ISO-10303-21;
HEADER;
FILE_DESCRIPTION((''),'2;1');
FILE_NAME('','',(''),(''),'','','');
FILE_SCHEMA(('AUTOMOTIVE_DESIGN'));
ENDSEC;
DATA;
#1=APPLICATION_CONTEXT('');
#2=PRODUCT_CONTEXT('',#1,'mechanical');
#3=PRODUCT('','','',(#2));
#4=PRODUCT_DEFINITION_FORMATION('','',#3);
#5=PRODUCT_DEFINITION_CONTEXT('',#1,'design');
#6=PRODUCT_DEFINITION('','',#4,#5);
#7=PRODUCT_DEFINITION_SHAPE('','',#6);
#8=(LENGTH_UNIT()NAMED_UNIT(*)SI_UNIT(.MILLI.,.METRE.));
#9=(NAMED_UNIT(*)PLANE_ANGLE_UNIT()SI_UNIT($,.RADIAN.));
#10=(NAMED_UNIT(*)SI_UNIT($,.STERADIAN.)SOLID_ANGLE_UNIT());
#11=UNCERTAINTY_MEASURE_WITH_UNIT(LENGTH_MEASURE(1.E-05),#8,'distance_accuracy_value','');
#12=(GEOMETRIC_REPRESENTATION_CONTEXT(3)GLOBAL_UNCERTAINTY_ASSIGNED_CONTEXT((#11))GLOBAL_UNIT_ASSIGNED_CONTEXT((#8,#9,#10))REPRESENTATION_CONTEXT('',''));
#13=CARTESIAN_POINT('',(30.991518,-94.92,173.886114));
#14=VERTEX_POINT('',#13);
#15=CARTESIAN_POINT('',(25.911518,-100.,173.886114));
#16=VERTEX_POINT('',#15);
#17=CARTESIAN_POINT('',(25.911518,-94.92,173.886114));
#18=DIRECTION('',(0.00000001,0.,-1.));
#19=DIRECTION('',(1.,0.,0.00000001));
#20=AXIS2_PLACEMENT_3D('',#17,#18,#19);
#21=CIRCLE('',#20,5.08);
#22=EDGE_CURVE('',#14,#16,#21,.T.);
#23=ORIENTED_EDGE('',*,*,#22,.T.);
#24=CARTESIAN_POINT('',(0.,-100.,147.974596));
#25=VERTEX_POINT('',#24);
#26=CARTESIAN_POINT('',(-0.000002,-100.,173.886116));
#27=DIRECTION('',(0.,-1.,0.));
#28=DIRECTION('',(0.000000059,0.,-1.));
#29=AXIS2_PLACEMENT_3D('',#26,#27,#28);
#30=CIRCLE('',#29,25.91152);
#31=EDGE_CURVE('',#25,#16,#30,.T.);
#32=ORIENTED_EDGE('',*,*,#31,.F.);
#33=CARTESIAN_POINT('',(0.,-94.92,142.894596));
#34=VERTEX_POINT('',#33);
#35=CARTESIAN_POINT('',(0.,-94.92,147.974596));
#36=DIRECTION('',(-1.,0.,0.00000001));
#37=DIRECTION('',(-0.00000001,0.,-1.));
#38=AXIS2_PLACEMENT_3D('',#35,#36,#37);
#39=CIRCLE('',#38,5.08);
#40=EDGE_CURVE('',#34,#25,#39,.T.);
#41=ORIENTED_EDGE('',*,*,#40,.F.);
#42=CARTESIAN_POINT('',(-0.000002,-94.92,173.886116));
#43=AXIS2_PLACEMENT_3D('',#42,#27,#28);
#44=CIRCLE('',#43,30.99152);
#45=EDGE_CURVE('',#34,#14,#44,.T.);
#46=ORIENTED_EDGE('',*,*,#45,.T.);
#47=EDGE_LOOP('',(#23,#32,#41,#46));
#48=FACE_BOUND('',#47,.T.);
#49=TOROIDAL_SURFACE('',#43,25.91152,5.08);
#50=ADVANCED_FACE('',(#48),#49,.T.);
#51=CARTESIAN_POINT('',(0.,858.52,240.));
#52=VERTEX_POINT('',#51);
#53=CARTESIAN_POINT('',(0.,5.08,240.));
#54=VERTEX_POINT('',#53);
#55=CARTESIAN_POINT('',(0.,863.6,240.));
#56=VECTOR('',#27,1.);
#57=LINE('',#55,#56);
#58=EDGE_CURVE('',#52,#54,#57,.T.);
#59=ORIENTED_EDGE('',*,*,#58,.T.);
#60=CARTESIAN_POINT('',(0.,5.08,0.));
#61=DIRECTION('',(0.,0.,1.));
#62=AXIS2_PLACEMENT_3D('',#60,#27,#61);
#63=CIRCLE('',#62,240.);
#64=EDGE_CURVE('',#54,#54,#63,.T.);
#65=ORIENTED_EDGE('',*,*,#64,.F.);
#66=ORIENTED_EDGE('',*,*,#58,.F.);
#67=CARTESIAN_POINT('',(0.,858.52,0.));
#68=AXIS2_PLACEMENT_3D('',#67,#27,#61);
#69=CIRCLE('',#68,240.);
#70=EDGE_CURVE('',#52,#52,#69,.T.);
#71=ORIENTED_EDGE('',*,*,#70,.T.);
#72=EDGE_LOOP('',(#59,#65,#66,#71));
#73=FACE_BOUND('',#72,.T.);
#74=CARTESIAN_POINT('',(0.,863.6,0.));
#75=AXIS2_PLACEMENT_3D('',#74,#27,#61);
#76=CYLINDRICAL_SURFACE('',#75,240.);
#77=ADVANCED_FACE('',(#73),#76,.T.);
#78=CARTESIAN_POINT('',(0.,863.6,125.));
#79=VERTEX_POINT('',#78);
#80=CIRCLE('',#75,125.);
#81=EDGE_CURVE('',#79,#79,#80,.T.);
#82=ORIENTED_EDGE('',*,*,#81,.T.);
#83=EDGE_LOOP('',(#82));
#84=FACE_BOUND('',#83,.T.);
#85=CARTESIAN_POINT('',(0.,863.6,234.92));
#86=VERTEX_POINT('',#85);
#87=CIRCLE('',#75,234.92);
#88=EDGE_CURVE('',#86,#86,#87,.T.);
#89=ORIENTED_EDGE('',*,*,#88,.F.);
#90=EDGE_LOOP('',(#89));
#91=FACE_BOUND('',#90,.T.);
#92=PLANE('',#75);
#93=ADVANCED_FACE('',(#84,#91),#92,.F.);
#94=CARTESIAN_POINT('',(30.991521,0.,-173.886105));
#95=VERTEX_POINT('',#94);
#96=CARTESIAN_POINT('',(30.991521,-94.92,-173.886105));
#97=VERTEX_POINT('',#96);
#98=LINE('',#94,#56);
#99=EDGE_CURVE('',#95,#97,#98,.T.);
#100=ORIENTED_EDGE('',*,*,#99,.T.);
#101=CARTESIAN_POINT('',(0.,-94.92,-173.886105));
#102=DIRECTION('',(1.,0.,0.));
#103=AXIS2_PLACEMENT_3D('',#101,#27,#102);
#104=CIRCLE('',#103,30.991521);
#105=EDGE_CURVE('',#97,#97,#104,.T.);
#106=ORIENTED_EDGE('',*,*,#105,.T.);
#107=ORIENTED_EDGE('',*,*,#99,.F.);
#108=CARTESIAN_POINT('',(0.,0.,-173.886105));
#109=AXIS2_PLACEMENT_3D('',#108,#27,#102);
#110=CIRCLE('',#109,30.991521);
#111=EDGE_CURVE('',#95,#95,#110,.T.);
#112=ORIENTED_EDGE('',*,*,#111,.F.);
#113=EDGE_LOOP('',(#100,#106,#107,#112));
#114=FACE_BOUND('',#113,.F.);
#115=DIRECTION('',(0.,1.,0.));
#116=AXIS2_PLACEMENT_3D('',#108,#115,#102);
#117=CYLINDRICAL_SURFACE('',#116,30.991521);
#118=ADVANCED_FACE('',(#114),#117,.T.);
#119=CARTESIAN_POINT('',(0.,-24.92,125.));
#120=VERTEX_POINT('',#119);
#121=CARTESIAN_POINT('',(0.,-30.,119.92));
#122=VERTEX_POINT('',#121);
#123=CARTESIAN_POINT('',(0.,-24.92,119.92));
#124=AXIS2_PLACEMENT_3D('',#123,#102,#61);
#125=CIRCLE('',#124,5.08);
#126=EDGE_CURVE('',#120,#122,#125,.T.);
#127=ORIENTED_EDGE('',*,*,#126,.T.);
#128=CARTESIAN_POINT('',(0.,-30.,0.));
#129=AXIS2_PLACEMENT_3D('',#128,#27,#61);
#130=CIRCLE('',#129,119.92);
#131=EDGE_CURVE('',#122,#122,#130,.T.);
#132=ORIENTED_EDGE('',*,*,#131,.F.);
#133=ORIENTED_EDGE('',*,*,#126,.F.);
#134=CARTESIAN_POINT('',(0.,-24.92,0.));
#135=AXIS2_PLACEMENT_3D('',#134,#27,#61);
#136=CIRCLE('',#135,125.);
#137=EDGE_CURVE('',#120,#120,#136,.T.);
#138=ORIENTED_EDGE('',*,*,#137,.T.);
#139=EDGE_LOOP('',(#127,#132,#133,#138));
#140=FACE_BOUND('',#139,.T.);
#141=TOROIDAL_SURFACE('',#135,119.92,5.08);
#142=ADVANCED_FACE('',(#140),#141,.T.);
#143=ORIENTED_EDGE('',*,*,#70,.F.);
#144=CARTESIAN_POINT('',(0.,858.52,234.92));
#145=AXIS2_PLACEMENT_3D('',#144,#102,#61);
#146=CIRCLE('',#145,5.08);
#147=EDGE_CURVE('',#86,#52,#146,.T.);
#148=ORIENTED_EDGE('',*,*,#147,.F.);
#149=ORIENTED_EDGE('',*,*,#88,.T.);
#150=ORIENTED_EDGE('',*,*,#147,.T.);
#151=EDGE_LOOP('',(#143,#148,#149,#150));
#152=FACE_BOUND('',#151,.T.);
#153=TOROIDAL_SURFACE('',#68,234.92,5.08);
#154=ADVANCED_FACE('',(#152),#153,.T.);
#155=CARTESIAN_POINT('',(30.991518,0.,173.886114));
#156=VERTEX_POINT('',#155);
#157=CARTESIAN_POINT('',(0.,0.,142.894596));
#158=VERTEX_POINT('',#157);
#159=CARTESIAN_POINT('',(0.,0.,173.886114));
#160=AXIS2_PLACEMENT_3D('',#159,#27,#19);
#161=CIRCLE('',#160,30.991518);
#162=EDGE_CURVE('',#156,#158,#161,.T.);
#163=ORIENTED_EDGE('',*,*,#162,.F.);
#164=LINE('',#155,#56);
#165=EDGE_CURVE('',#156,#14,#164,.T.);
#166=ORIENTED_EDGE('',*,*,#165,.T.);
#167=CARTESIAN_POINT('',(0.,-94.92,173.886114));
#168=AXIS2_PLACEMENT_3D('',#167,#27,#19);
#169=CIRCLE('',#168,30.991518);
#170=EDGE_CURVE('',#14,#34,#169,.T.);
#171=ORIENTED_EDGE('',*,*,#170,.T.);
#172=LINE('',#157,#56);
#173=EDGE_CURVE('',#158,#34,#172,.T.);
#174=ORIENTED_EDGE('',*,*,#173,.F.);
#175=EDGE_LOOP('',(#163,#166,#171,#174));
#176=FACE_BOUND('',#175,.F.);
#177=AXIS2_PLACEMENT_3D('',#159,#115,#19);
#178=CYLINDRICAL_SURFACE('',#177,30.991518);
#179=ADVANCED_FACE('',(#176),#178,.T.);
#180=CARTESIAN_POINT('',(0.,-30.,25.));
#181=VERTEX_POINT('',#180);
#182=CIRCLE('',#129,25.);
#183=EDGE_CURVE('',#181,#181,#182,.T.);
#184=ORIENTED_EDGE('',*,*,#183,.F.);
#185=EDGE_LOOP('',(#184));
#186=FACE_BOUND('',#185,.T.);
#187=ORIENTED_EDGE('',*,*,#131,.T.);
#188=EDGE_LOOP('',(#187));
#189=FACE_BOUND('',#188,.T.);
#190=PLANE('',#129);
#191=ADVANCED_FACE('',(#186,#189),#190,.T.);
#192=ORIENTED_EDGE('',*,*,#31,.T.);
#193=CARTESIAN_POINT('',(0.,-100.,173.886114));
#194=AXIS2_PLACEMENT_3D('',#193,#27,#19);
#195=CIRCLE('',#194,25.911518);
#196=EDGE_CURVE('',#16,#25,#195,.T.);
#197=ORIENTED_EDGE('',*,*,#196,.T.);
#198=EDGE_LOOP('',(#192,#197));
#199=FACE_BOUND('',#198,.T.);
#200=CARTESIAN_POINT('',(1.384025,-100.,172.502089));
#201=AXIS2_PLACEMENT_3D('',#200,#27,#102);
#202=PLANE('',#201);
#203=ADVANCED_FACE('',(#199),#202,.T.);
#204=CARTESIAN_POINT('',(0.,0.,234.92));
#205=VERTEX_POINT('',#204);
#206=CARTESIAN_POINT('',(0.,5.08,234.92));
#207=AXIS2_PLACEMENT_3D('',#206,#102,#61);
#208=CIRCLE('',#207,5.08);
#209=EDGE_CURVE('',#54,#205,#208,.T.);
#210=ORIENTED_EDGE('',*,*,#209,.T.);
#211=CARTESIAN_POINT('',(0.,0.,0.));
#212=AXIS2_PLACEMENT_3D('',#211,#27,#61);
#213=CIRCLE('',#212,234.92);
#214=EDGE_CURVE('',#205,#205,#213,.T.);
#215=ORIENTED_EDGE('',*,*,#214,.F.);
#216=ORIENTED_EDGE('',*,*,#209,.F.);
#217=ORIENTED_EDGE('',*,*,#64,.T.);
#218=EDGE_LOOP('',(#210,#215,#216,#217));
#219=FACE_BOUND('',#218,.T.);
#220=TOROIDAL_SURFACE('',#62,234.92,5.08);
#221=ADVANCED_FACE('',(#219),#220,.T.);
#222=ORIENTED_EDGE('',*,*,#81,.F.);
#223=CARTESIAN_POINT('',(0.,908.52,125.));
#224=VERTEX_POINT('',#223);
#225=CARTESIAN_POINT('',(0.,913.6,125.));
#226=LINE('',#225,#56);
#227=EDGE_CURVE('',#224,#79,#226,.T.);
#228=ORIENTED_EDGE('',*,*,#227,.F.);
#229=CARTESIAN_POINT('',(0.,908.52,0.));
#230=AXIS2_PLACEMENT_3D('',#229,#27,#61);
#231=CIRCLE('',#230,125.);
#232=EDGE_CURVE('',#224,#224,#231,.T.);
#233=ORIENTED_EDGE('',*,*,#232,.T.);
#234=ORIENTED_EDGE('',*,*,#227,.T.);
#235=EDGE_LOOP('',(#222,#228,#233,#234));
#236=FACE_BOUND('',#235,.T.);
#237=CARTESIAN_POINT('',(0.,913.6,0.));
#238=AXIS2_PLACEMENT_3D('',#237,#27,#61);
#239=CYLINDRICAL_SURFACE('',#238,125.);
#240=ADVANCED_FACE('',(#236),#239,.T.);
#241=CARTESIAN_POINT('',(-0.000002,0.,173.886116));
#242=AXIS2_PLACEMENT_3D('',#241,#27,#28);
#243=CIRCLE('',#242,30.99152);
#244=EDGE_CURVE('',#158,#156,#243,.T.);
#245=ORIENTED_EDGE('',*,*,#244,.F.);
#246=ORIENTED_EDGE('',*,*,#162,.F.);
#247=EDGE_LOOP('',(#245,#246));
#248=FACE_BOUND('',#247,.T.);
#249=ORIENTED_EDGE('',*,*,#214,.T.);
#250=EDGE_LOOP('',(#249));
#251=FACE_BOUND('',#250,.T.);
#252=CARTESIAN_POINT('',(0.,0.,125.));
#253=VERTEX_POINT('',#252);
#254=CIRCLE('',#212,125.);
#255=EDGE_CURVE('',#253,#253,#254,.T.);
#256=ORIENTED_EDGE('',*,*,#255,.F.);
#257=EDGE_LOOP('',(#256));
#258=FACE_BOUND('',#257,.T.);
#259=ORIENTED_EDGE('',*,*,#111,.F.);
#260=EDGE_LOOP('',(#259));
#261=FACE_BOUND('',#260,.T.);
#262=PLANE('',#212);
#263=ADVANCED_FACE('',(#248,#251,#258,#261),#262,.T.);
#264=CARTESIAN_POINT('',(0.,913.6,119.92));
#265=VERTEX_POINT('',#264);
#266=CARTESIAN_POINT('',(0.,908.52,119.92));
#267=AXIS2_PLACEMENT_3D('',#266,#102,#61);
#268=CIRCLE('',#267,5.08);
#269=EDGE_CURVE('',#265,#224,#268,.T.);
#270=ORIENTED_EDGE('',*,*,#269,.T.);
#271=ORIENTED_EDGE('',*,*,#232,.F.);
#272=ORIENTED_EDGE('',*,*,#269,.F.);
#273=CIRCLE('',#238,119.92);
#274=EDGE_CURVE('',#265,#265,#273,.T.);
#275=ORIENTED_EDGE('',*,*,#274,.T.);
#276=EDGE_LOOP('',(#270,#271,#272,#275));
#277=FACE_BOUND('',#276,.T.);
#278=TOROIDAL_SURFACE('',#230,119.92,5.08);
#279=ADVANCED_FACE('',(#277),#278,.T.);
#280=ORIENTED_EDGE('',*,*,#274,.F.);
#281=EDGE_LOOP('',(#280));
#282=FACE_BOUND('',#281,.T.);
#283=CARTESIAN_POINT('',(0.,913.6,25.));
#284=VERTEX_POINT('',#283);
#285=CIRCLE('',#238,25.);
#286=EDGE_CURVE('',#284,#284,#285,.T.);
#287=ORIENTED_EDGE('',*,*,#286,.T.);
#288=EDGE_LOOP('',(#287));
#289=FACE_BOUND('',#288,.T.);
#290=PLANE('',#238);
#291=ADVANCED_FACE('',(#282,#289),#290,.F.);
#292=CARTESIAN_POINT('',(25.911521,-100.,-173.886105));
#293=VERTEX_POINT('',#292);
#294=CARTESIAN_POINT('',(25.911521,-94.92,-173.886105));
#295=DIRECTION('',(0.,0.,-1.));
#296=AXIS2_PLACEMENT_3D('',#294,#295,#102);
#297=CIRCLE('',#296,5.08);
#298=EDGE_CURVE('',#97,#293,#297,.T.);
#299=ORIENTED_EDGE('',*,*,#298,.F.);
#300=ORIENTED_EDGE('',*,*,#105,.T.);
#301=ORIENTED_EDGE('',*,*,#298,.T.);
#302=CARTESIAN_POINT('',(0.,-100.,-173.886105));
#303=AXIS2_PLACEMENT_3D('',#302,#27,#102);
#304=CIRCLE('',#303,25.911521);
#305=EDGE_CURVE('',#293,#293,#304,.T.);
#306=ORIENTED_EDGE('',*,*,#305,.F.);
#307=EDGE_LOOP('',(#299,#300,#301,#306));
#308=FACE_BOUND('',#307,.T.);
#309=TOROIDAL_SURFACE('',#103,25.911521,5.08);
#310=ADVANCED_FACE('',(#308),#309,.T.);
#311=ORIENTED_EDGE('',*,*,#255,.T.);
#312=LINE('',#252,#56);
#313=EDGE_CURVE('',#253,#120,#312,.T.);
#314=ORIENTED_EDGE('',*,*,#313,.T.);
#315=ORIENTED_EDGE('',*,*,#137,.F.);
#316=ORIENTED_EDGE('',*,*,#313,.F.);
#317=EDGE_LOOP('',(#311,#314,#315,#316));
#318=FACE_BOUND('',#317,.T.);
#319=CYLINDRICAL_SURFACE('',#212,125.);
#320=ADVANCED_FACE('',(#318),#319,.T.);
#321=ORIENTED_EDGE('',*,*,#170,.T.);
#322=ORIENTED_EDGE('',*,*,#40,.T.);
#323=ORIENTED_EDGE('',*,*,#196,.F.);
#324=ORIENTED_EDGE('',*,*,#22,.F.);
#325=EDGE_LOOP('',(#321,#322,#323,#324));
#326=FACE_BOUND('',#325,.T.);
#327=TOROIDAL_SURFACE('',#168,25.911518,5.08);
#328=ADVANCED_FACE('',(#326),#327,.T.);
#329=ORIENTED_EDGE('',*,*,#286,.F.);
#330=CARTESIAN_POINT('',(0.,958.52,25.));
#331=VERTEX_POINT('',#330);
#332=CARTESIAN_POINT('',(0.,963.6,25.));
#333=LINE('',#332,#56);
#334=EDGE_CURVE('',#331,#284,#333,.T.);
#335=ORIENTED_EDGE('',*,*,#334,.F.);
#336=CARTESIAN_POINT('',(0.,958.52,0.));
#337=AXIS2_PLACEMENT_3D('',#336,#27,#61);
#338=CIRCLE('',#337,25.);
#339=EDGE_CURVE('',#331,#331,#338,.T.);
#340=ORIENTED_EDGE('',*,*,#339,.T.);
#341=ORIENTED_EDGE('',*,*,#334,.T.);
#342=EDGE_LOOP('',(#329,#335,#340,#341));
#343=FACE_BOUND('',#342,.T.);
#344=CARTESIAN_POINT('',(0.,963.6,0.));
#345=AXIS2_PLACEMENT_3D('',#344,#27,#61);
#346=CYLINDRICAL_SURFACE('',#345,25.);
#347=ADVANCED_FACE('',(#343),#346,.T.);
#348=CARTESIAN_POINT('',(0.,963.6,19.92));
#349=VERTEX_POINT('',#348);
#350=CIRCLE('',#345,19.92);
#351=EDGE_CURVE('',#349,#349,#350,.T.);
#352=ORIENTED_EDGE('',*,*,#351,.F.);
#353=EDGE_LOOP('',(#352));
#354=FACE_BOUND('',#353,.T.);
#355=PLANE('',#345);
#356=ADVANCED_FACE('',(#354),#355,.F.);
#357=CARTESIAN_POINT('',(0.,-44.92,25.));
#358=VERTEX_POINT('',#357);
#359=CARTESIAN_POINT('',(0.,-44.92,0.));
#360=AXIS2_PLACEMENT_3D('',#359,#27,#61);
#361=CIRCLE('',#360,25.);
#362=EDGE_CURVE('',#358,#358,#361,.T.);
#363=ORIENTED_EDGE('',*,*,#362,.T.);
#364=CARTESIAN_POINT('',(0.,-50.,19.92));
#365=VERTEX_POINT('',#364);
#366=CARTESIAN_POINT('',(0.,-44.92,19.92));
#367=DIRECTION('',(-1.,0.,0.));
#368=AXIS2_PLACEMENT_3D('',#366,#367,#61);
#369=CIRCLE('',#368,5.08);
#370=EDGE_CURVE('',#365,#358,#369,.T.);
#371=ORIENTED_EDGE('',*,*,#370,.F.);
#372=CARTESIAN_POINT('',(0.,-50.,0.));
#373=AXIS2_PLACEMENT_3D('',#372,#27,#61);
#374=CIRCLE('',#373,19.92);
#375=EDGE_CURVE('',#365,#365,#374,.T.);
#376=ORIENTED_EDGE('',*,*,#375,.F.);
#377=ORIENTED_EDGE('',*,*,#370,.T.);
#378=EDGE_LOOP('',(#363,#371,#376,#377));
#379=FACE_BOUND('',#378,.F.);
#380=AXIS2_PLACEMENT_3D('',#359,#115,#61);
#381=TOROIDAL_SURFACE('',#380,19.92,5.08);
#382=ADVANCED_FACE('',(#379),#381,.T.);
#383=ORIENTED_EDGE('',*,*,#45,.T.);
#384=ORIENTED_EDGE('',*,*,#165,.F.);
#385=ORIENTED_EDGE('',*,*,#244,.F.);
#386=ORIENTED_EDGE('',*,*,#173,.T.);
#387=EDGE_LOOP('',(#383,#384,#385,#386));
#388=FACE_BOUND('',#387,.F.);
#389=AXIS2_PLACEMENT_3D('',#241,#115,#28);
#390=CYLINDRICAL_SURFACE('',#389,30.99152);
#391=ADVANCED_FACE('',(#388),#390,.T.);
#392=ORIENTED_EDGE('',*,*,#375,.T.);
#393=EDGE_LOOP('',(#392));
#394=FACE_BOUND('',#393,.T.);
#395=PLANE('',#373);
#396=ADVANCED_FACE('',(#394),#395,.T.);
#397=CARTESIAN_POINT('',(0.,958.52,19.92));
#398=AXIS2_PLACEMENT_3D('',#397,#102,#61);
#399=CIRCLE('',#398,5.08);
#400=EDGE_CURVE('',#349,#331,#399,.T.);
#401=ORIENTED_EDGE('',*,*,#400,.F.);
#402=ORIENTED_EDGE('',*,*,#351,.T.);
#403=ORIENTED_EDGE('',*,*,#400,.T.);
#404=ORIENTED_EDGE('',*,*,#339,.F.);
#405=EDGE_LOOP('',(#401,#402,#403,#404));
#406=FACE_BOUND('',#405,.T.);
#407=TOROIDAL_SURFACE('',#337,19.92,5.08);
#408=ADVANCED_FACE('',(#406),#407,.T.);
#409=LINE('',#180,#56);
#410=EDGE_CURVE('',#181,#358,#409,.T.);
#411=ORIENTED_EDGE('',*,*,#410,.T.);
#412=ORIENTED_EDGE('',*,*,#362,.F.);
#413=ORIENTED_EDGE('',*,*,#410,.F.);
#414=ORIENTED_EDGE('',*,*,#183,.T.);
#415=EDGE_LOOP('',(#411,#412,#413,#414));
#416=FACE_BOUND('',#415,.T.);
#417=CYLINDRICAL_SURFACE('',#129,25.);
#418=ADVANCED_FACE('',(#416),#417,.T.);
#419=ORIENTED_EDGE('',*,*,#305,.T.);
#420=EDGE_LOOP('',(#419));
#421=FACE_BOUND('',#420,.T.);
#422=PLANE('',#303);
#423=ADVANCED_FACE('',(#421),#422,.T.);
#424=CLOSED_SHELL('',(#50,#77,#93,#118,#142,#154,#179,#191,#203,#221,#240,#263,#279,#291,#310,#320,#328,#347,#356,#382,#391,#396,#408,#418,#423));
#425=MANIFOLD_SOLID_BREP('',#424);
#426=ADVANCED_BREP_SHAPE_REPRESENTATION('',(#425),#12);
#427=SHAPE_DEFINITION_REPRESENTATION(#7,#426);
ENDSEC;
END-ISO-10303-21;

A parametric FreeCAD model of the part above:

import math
import FreeCAD as App
import Part
import Sketcher

V = App.Vector


def edges_at(feature, points):
    """Names of the edges that pass closest to the given points."""
    edges = feature.Shape.Edges
    near = lambda p: min(range(len(edges)), key=lambda i: edges[i].distToShape(Part.Vertex(*p))[0])
    return sorted({f"Edge{near(p) + 1}" for p in points})


def add_polygon(sketch, points):
    """Adds a closed chain of lines whose ends are joined by coincident constraints."""
    first, n = sketch.GeometryCount, len(points)
    for a, b in zip(points, points[1:] + points[:1]):
        sketch.addGeometry(Part.LineSegment(App.Vector(*a, 0), App.Vector(*b, 0)), False)
    for i in range(n):
        sketch.addConstraint(Sketcher.Constraint("Coincident", first + i, 2, first + (i + 1) % n, 1))

doc = App.newDocument("Part")
params = doc.addObject("Spreadsheet::Sheet", "Params")
for row, (alias, value) in enumerate([
    ("sketch1_width", "50 mm"),
    ("sketch1_width2", "30 mm"),
    ("sketch1_width3", "20 mm"),
    ("sketch1_height", "25 mm"),
    ("sketch1_height2", "100 mm"),
    ("revolution_angle", "360 deg"),
    ("fillet_radius", "5.08 mm"),
    ("pad1_length", "100 mm"),
    ("fillet2_radius", "5.08 mm"),
], start=1):
    params.set(f"A{row}", alias)
    params.set(f"B{row}", "=" + value)
    params.setAlias(f"B{row}", alias)

body = doc.addObject("PartDesign::Body", "Body")

# Sketch on YZ plane
sketch1 = body.newObject("Sketcher::SketchObject", "Sketch")
sketch1.AttachmentSupport = (doc.getObject("YZ_Plane"), [""])
sketch1.MapMode = "FlatFace"
add_polygon(sketch1, [(-50, 25), (-50, 0), (964, 0), (964, 25), (914, 25), (914, 125), (864, 125), (864, 240), (0, 240), (0, 125), (-30, 125), (-30, 25)])  # lines 0-11
sketch1.addConstraint([
    Sketcher.Constraint("Vertical", 0),
    Sketcher.Constraint("Horizontal", 1),
    Sketcher.Constraint("Vertical", 2),
    Sketcher.Constraint("Horizontal", 3),
    Sketcher.Constraint("Vertical", 4),
    Sketcher.Constraint("Horizontal", 5),
    Sketcher.Constraint("Vertical", 6),
    Sketcher.Constraint("Horizontal", 7),
    Sketcher.Constraint("Vertical", 8),
    Sketcher.Constraint("Horizontal", 9),
    Sketcher.Constraint("Vertical", 10),
    Sketcher.Constraint("Horizontal", 11),
    Sketcher.Constraint("PointOnObject", 0, 2, -1),
    Sketcher.Constraint("PointOnObject", 7, 2, -2),
    Sketcher.Constraint("Horizontal", 5, 2, 8, 2),
    Sketcher.Constraint("Horizontal", 3, 2, 10, 2),
    Sketcher.Constraint("Equal", 3, 5),
    Sketcher.Constraint("DistanceX", 3, 2, 3, 1, 50.0),
    Sketcher.Constraint("DistanceX", 9, 2, 9, 1, 30.0),
    Sketcher.Constraint("DistanceX", 11, 2, 11, 1, 20.0),
    Sketcher.Constraint("DistanceY", 0, 2, 0, 1, 25.0),
    Sketcher.Constraint("DistanceY", 4, 1, 4, 2, 100.0),
    Sketcher.Constraint("DistanceY", 6, 1, 6, 2, 115.0),
    Sketcher.Constraint("DistanceX", 1, 1, 1, 2, 1013.6),
])
sketch1.setExpression("Constraints[29]", "Params.sketch1_width")
sketch1.setExpression("Constraints[30]", "Params.sketch1_width2")
sketch1.setExpression("Constraints[31]", "Params.sketch1_width3")
sketch1.setExpression("Constraints[32]", "Params.sketch1_height")
sketch1.setExpression("Constraints[33]", "Params.sketch1_height2")
revolution = body.newObject("PartDesign::Revolution", "Revolution")
revolution.Profile = sketch1
revolution.ReferenceAxis = (sketch1, ["H_Axis"])
revolution.setExpression("Angle", "Params.revolution_angle")
doc.recompute()

fillet = body.newObject("PartDesign::Fillet", "Fillet")
fillet.Base = (revolution, edges_at(revolution, [
    (0, 863.6, -240),
    (0, 913.6, -125),
    (0, 963.6, -25),
    (0, 0, -240),
    (0, -30, -125),
    (0, -50, -25),
]))
fillet.setExpression("Radius", "Params.fillet_radius")

# Sketch on XZ plane
sketch2 = body.newObject("Sketcher::SketchObject", "Sketch001")
sketch2.AttachmentSupport = (doc.getObject("XZ_Plane"), [""])
sketch2.MapMode = "FlatFace"
sketch2.addGeometry([
    Part.ArcOfCircle(Part.Circle(V(0, 174, 0), V(0, 0, 1), 31), math.radians(0), math.radians(270)),
    Part.ArcOfCircle(Part.Circle(V(0, 174, 0), V(0, 0, 1), 31), math.radians(-90), math.radians(0)),
    Part.Circle(V(0, -174, 0), V(0, 0, 1), 31),
], False)
sketch2.addConstraint([
    Sketcher.Constraint("Tangent", 0, 1, 1, 2),
    Sketcher.Constraint("Coincident", 1, 1, 0, 2),
    Sketcher.Constraint("Equal", 1, 2),
    Sketcher.Constraint("Symmetric", 0, 3, 2, 3, -1, 1),
    Sketcher.Constraint("PointOnObject", 0, 3, -2),
    Sketcher.Constraint("PointOnObject", 1, 1, -2),
    Sketcher.Constraint("Horizontal", 1, 3, 0, 1),
    Sketcher.Constraint("Diameter", 2, 61.983042),
    Sketcher.Constraint("DistanceY", 2, 3, 1, 1, 316.780701),
])
pad1 = body.newObject("PartDesign::Pad", "Pad")
pad1.Profile = sketch2
pad1.setExpression("Length", "Params.pad1_length")
doc.recompute()

fillet2 = body.newObject("PartDesign::Fillet", "Fillet001")
fillet2.Base = (pad1, edges_at(pad1, [(-30.992, -100, -173.886), (-21.914, -100, 195.8)]))
fillet2.setExpression("Radius", "Params.fillet2_radius")

doc.recompute()
